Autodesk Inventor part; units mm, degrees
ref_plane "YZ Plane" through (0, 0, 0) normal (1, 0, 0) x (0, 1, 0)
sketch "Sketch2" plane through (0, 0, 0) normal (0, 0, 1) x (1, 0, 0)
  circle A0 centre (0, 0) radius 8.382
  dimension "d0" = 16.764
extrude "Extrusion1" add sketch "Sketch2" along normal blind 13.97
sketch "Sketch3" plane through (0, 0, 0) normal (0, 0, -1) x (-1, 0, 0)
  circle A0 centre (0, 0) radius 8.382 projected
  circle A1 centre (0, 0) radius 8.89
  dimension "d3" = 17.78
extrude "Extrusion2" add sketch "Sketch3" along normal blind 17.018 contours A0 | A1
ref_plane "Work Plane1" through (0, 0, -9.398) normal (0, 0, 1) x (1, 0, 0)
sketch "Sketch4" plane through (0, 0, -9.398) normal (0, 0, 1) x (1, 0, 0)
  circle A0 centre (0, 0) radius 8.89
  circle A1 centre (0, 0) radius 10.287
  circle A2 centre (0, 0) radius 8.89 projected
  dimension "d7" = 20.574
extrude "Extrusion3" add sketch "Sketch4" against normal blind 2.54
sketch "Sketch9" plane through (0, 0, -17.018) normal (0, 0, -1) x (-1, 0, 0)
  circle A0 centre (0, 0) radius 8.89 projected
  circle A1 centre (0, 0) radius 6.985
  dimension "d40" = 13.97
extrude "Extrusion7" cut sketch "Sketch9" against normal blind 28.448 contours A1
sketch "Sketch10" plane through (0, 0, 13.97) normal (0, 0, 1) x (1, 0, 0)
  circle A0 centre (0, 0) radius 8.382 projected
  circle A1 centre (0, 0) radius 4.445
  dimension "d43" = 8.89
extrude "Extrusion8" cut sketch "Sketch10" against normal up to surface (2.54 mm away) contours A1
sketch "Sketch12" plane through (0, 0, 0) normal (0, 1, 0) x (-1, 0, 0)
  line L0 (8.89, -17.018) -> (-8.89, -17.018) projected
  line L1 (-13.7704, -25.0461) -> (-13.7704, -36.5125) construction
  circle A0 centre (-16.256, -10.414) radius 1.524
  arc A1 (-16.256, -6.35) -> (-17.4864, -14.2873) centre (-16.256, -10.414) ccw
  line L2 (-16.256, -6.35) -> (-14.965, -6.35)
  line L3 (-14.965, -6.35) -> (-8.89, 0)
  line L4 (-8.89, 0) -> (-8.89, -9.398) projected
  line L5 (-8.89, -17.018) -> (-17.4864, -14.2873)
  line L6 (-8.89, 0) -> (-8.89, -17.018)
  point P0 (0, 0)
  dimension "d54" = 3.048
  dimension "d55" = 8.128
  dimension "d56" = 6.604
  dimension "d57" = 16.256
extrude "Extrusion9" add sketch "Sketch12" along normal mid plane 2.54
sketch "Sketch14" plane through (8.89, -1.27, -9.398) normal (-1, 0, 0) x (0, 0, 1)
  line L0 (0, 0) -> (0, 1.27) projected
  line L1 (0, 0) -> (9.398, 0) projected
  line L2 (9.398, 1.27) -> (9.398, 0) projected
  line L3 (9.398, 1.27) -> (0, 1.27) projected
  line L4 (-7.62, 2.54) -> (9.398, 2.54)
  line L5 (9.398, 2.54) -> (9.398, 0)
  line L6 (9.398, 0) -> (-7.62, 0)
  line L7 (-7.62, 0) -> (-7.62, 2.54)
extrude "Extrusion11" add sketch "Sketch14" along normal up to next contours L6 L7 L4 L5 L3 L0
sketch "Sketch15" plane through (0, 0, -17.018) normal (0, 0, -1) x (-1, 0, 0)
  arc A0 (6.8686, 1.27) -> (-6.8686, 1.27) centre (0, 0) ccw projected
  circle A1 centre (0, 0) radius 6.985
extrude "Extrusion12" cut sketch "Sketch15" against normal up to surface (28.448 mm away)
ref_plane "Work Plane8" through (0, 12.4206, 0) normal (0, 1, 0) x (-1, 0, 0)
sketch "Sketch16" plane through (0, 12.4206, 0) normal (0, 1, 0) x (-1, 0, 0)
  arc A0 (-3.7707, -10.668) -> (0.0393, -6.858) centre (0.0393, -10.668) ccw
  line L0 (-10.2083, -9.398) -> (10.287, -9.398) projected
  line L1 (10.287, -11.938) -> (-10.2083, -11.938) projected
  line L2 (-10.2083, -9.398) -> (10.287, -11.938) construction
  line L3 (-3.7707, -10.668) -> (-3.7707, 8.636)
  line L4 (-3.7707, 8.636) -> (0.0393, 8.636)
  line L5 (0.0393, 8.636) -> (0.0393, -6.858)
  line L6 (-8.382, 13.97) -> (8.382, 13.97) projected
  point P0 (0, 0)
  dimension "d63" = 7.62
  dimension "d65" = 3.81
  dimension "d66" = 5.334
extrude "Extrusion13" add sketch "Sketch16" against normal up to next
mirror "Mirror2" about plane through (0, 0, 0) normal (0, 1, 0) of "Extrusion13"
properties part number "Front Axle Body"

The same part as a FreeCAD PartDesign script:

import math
import FreeCAD as App
import Part
import Sketcher
Q = App.Units.Quantity


def add_polygon(sketch, points):
    """Adds a closed chain of lines whose ends are joined by coincident constraints."""
    first, n = sketch.GeometryCount, len(points)
    for a, b in zip(points, points[1:] + points[:1]):
        sketch.addGeometry(Part.LineSegment(App.Vector(*a, 0), App.Vector(*b, 0)), False)
    for i in range(n):
        sketch.addConstraint(Sketcher.Constraint("Coincident", first + i, 2, first + (i + 1) % n, 1))

doc = App.newDocument("Part")
body = doc.addObject("PartDesign::Body", "Body")

# Sketch on XY plane
sketch1 = doc.addObject("Sketcher::SketchObject", "Sketch")
body.addObject(sketch1)
sketch1.AttachmentSupport = (doc.XY_Plane, [""])
sketch1.MapMode = "FlatFace"
sketch1.addGeometry(Part.Circle(App.Vector(0, 0, 0), App.Vector(0, 0, 1), 8.382), False)
sketch1.addConstraint(Sketcher.Constraint("Coincident", 0, 3, -1, 1))
sketch1.addConstraint(Sketcher.Constraint("Diameter", 0, Q("0.66 in")))
pad1 = doc.addObject("PartDesign::Pad", "Pad")
body.addObject(pad1)
pad1.Profile = sketch1
pad1.Length = Q("0.55 in")

# Sketch on XY plane
sketch2 = doc.addObject("Sketcher::SketchObject", "Sketch001")
body.addObject(sketch2)
sketch2.AttachmentSupport = (doc.XY_Plane, [""])
sketch2.MapMode = "FlatFace"
sketch2.addGeometry(Part.Circle(App.Vector(0, 0, 0), App.Vector(0, 0, 1), 8.89), False)
sketch2.addConstraint(Sketcher.Constraint("Coincident", 0, 3, -1, 1))
sketch2.addConstraint(Sketcher.Constraint("Diameter", 0, Q("0.7 in")))
pad2 = doc.addObject("PartDesign::Pad", "Pad001")
body.addObject(pad2)
pad2.Profile = sketch2
pad2.Length = Q("0.67 in")
pad2.Reversed = True

# Sketch on XY plane
sketch3 = doc.addObject("Sketcher::SketchObject", "Sketch002")
body.addObject(sketch3)
sketch3.AttachmentSupport = (doc.XY_Plane, [""])
sketch3.MapMode = "FlatFace"
sketch3.AttachmentOffset = App.Placement(App.Vector(0, 0, -0.37 * 25.4), App.Rotation())
sketch3.addGeometry(Part.Circle(App.Vector(0, 0, 0), App.Vector(0, 0, 1), 10.287), False)
sketch3.addGeometry(Part.Circle(App.Vector(0, 0, 0), App.Vector(0, 0, 1), 8.89), False)
sketch3.addConstraint(Sketcher.Constraint("Coincident", 0, 3, -1, 1))
sketch3.addConstraint(Sketcher.Constraint("Coincident", 1, 3, -1, 1))
sketch3.addConstraint(Sketcher.Constraint("Diameter", 0, Q("0.81 in")))
sketch3.addConstraint(Sketcher.Constraint("Diameter", 1, Q("0.7 in")))
pad3 = doc.addObject("PartDesign::Pad", "Pad002")
body.addObject(pad3)
pad3.Profile = sketch3
pad3.Length = Q("0.1 in")
pad3.Reversed = True

# Sketch on XY plane
sketch4 = doc.addObject("Sketcher::SketchObject", "Sketch003")
body.addObject(sketch4)
sketch4.AttachmentSupport = (doc.XY_Plane, [""])
sketch4.MapMode = "FlatFace"
sketch4.AttachmentOffset = App.Placement(App.Vector(0, 0, -0.67 * 25.4), App.Rotation())
sketch4.addGeometry(Part.Circle(App.Vector(0, 0, 0), App.Vector(0, 0, 1), 6.985), False)
sketch4.addConstraint(Sketcher.Constraint("Coincident", 0, 3, -1, 1))
sketch4.addConstraint(Sketcher.Constraint("Diameter", 0, Q("0.55 in")))
pocket1 = doc.addObject("PartDesign::Pocket", "Pocket")
body.addObject(pocket1)
pocket1.Profile = sketch4
pocket1.Length = Q("1.12 in")
pocket1.Reversed = True

# Sketch on XY plane
sketch5 = doc.addObject("Sketcher::SketchObject", "Sketch004")
body.addObject(sketch5)
sketch5.AttachmentSupport = (doc.XY_Plane, [""])
sketch5.MapMode = "FlatFace"
sketch5.AttachmentOffset = App.Placement(App.Vector(0, 0, 0.55 * 25.4), App.Rotation())
sketch5.addGeometry(Part.Circle(App.Vector(0, 0, 0), App.Vector(0, 0, 1), 4.445), False)
sketch5.addConstraint(Sketcher.Constraint("Coincident", 0, 3, -1, 1))
sketch5.addConstraint(Sketcher.Constraint("Diameter", 0, Q("0.35 in")))
pocket2 = doc.addObject("PartDesign::Pocket", "Pocket001")
body.addObject(pocket2)
pocket2.Profile = sketch5
pocket2.Length = Q("0.1 in")

# Sketch on XZ plane
sketch6 = doc.addObject("Sketcher::SketchObject", "Sketch005")
body.addObject(sketch6)
sketch6.AttachmentSupport = (doc.XZ_Plane, [""])
sketch6.MapMode = "FlatFace"
sketch6.addGeometry(Part.LineSegment(App.Vector(14.965, -6.35, 0), App.Vector(16.256, -6.35, 0)), False)
sketch6.addGeometry(Part.ArcOfCircle(Part.Circle(App.Vector(16.256, -10.414, 0), App.Vector(0, 0, 1), 4.064), math.radians(-72.376928), math.radians(90)), False)
sketch6.addGeometry(Part.LineSegment(App.Vector(17.4864, -14.2873, 0), App.Vector(8.89, -17.018, 0)), False)
sketch6.addGeometry(Part.LineSegment(App.Vector(8.89, -17.018, 0), App.Vector(8.89, 0, 0)), False)
sketch6.addGeometry(Part.LineSegment(App.Vector(8.89, 0, 0), App.Vector(14.965, -6.35, 0)), False)
sketch6.addGeometry(Part.Circle(App.Vector(16.256, -10.414, 0), App.Vector(0, 0, 1), 1.524), False)
sketch6.addConstraint(Sketcher.Constraint("Tangent", 0, 2, 1, 2))
sketch6.addConstraint(Sketcher.Constraint("Tangent", 1, 1, 2, 1))
sketch6.addConstraint(Sketcher.Constraint("Coincident", 2, 2, 3, 1))
sketch6.addConstraint(Sketcher.Constraint("Coincident", 3, 2, 4, 1))
sketch6.addConstraint(Sketcher.Constraint("Coincident", 4, 2, 0, 1))
sketch6.addConstraint(Sketcher.Constraint("Horizontal", 0))
sketch6.addConstraint(Sketcher.Constraint("Vertical", 3))
sketch6.addConstraint(Sketcher.Constraint("Coincident", 5, 3, 1, 3))
sketch6.addConstraint(Sketcher.Constraint("PointOnObject", 3, 2, -1))
sketch6.addConstraint(Sketcher.Constraint("Diameter", 5, Q("0.12 in")))
sketch6.addConstraint(Sketcher.Constraint("Radius", 1, Q("0.16 in")))
sketch6.addConstraint(Sketcher.Constraint("DistanceX", -1, 1, 1, 3, Q("0.64 in")))
sketch6.addConstraint(Sketcher.Constraint("DistanceY", 2, 2, 1, 3, Q("0.26 in")))
sketch6.addConstraint(Sketcher.Constraint("DistanceY", 3, 1, 3, 2, Q("0.67 in")))
sketch6.addConstraint(Sketcher.Constraint("DistanceX", -1, 1, 2, 2, Q("0.35 in")))
sketch6.addConstraint(Sketcher.Constraint("DistanceX", 0, 1, 0, 2, Q("1.291 mm")))
pad4 = doc.addObject("PartDesign::Pad", "Pad003")
body.addObject(pad4)
pad4.Profile = sketch6
pad4.Length = Q("0.1 in")
pad4.Midplane = True

# Sketch on YZ plane
sketch7 = doc.addObject("Sketcher::SketchObject", "Sketch006")
body.addObject(sketch7)
sketch7.AttachmentSupport = (doc.YZ_Plane, [""])
sketch7.MapMode = "FlatFace"
sketch7.AttachmentOffset = App.Placement(App.Vector(0, 0, 0.35 * 25.4), App.Rotation())
add_polygon(sketch7, [(-1.27, -17.018), (-1.27, -9.398), (0, -9.398), (0, 0), (1.27, 0), (1.27, -17.018)])  # lines 0-5
sketch7.addConstraint(Sketcher.Constraint("Vertical", 0))
sketch7.addConstraint(Sketcher.Constraint("Horizontal", 1))
sketch7.addConstraint(Sketcher.Constraint("Vertical", 2))
sketch7.addConstraint(Sketcher.Constraint("Horizontal", 3))
sketch7.addConstraint(Sketcher.Constraint("Vertical", 4))
sketch7.addConstraint(Sketcher.Constraint("Horizontal", 5))
sketch7.addConstraint(Sketcher.Constraint("Coincident", 2, 2, -1, 1))
sketch7.addConstraint(Sketcher.Constraint("Equal", 1, 3))
sketch7.addConstraint(Sketcher.Constraint("DistanceX", 5, 2, 5, 1, Q("0.1 in")))
sketch7.addConstraint(Sketcher.Constraint("DistanceY", 0, 1, 0, 2, Q("0.3 in")))
sketch7.addConstraint(Sketcher.Constraint("DistanceY", 2, 1, 2, 2, Q("0.37 in")))
pad5 = doc.addObject("PartDesign::Pad", "Pad004")
body.addObject(pad5)
pad5.Profile = sketch7
pad5.Length = Q("0.0035906 in")
pad5.Reversed = True

# Sketch on XY plane
sketch8 = doc.addObject("Sketcher::SketchObject", "Sketch007")
body.addObject(sketch8)
sketch8.AttachmentSupport = (doc.XY_Plane, [""])
sketch8.MapMode = "FlatFace"
sketch8.AttachmentOffset = App.Placement(App.Vector(0, 0, -0.67 * 25.4), App.Rotation())
sketch8.addGeometry(Part.Circle(App.Vector(0, 0, 0), App.Vector(0, 0, 1), 6.985024), False)
sketch8.addConstraint(Sketcher.Constraint("Coincident", 0, 3, -1, 1))
sketch8.addConstraint(Sketcher.Constraint("Diameter", 0, Q("0.55 in")))
pocket3 = doc.addObject("PartDesign::Pocket", "Pocket002")
body.addObject(pocket3)
pocket3.Profile = sketch8
pocket3.Length = Q("1.12 in")
pocket3.Reversed = True

# Sketch on XZ plane
sketch9 = doc.addObject("Sketcher::SketchObject", "Sketch008")
body.addObject(sketch9)
sketch9.AttachmentSupport = (doc.XZ_Plane, [""])
sketch9.MapMode = "FlatFace"
sketch9.AttachmentOffset = App.Placement(App.Vector(0, 0, -0.489 * 25.4), App.Rotation())
sketch9.addGeometry(Part.ArcOfCircle(Part.Circle(App.Vector(-0.0393, -10.668, 0), App.Vector(0, 0, 1), 3.81), math.radians(90), math.radians(360)), False)
sketch9.addGeometry(Part.LineSegment(App.Vector(-0.0393, -6.858, 0), App.Vector(-0.0393, 8.636, 0)), False)
sketch9.addGeometry(Part.LineSegment(App.Vector(-0.0393, 8.636, 0), App.Vector(3.7707, 8.636, 0)), False)
sketch9.addGeometry(Part.LineSegment(App.Vector(3.7707, 8.636, 0), App.Vector(3.7707, -10.668, 0)), False)
sketch9.addConstraint(Sketcher.Constraint("Coincident", 0, 1, 1, 1))
sketch9.addConstraint(Sketcher.Constraint("Coincident", 1, 2, 2, 1))
sketch9.addConstraint(Sketcher.Constraint("Coincident", 2, 2, 3, 1))
sketch9.addConstraint(Sketcher.Constraint("Tangent", 3, 2, 0, 2))
sketch9.addConstraint(Sketcher.Constraint("Vertical", 1))
sketch9.addConstraint(Sketcher.Constraint("Horizontal", 2))
sketch9.addConstraint(Sketcher.Constraint("Vertical", 3))
sketch9.addConstraint(Sketcher.Constraint("Radius", 0, Q("0.15 in")))
sketch9.addConstraint(Sketcher.Constraint("DistanceX", 2, 1, 2, 2, Q("0.15 in")))
sketch9.addConstraint(Sketcher.Constraint("DistanceY", 1, 1, 1, 2, Q("0.61 in")))
sketch9.addConstraint(Sketcher.Constraint("DistanceY", 0, 3, -1, 1, Q("0.42 in")))
sketch9.addConstraint(Sketcher.Constraint("DistanceX", 0, 3, -1, 1, Q("0.0393 mm")))
pad6 = doc.addObject("PartDesign::Pad", "Pad005")
body.addObject(pad6)
pad6.Profile = sketch9
pad6.Type = "UpToFirst"
doc.recompute()

mirrored = doc.addObject("PartDesign::Mirrored", "Mirrored")
body.addObject(mirrored)
mirrored.Originals = [pad6]
mirrored.MirrorPlane = (doc.XZ_Plane, [""])
body.Tip = mirrored

doc.recompute()
